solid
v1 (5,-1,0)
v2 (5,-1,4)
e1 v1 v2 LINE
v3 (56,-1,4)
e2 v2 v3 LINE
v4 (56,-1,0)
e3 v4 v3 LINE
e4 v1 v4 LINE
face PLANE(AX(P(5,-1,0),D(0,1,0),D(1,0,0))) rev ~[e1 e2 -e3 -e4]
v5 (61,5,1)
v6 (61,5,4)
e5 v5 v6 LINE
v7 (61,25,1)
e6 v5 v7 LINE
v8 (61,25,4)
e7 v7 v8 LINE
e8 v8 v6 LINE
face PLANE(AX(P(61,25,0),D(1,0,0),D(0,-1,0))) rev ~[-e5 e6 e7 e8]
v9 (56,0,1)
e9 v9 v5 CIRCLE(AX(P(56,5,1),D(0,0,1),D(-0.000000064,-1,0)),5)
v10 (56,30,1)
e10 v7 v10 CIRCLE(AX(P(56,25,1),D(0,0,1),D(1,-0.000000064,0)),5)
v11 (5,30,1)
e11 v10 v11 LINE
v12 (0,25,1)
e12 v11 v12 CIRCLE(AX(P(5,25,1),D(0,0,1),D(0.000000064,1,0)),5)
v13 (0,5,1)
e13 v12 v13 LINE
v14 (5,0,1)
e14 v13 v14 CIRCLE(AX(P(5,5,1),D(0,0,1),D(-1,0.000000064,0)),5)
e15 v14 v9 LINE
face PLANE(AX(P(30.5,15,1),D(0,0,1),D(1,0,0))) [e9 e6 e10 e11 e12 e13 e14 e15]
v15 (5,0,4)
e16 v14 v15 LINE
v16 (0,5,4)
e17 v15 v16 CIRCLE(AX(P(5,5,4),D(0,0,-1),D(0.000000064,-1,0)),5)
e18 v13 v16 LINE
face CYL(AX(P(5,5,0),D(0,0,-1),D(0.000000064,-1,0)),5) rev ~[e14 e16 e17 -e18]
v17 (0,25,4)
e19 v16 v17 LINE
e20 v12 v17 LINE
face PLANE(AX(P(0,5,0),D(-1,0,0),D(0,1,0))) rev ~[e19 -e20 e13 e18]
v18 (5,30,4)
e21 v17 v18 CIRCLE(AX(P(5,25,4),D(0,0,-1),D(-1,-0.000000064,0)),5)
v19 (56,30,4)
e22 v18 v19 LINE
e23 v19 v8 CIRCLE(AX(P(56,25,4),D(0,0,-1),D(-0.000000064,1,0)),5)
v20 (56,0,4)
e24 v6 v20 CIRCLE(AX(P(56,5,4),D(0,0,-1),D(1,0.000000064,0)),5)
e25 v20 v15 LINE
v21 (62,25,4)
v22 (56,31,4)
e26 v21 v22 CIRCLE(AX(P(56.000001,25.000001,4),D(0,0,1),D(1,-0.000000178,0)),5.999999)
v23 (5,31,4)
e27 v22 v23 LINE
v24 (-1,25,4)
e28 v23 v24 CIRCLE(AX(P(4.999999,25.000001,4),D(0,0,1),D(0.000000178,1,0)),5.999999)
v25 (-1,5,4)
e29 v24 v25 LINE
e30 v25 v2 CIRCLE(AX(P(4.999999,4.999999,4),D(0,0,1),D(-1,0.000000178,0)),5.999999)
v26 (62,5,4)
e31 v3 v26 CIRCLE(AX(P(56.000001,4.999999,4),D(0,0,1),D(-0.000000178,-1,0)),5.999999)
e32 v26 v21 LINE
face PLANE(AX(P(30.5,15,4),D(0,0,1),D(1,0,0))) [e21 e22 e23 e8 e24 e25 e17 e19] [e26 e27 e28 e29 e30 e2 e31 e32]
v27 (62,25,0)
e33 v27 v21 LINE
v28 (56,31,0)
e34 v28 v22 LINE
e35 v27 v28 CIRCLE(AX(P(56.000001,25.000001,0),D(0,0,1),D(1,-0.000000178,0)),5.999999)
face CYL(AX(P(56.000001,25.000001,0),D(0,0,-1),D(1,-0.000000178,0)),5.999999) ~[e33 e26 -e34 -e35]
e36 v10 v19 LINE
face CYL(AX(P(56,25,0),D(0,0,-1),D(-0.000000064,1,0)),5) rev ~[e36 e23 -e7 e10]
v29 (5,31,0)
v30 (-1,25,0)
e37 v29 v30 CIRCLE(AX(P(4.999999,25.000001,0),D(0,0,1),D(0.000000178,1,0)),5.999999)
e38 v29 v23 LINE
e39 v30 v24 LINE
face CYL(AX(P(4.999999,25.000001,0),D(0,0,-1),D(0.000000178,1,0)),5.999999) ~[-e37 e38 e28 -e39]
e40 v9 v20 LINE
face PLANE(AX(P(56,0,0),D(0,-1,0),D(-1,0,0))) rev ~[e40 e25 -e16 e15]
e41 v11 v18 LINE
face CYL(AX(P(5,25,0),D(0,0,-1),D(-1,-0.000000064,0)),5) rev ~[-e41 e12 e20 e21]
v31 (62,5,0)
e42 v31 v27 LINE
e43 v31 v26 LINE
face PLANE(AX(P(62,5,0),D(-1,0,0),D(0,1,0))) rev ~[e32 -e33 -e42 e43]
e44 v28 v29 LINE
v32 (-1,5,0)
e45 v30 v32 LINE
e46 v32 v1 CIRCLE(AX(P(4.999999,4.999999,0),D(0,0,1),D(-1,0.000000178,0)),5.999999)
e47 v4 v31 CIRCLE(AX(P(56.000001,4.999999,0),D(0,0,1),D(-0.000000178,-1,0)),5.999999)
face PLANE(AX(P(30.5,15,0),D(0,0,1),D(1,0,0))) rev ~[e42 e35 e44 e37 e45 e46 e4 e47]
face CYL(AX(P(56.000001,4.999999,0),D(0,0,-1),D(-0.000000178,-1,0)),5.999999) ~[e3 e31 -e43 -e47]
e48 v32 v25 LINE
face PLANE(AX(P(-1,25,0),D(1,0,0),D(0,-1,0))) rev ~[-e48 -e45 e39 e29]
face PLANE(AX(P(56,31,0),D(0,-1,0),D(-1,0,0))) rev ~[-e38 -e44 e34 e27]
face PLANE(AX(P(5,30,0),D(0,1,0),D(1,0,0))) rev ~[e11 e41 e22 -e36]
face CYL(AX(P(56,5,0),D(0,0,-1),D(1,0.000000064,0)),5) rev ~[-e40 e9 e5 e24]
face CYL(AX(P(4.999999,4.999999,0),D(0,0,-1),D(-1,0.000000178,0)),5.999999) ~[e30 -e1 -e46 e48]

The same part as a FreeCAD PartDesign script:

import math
import FreeCAD as App
import Part
import Sketcher
Q = App.Units.Quantity

doc = App.newDocument("Part")
params = doc.addObject("Spreadsheet::Sheet", "Params")
for row, (alias, value) in enumerate([
    ("sketch1_radius", "5 mm"),
    ("sketch1_width", "51 mm"),
    ("sketch1_height", "20 mm"),
    ("pad1_length", "1 mm"),
    ("sketch2_radius", "5.999999 mm"),
    ("sketch2_radius2", "5 mm"),
    ("sketch2_width", "51 mm"),
    ("sketch2_height", "20 mm"),
    ("pad2_length", "4 mm"),
], start=1):
    params.set(f"A{row}", alias)
    params.set(f"B{row}", "=" + value)
    params.setAlias(f"B{row}", alias)

body = doc.addObject("PartDesign::Body", "Body")

# Sketch on XY plane
sketch1 = body.newObject("Sketcher::SketchObject", "Sketch")
sketch1.AttachmentSupport = (doc.getObject("XY_Plane"), [""])
sketch1.MapMode = "FlatFace"
sketch1.addGeometry([
    Part.ArcOfCircle(Part.Circle(App.Vector(5, 5, 0), App.Vector(0, 0, 1), 5), math.radians(180), math.radians(270)),  # 0
    Part.LineSegment(App.Vector(5, 0, 0), App.Vector(56, 0, 0)),  # 1
    Part.ArcOfCircle(Part.Circle(App.Vector(56, 5, 0), App.Vector(0, 0, 1), 5), math.radians(-90), math.radians(0)),  # 2
    Part.LineSegment(App.Vector(61, 5, 0), App.Vector(61, 25, 0)),  # 3
    Part.ArcOfCircle(Part.Circle(App.Vector(56, 25, 0), App.Vector(0, 0, 1), 5), math.radians(0), math.radians(90)),  # 4
    Part.LineSegment(App.Vector(56, 30, 0), App.Vector(5, 30, 0)),  # 5
    Part.ArcOfCircle(Part.Circle(App.Vector(5, 25, 0), App.Vector(0, 0, 1), 5), math.radians(90), math.radians(180)),  # 6
    Part.LineSegment(App.Vector(0, 25, 0), App.Vector(0, 5, 0)),  # 7
], False)
sketch1.addConstraint([
    Sketcher.Constraint("Tangent", 0, 2, 1, 1),
    Sketcher.Constraint("Tangent", 1, 2, 2, 1),
    Sketcher.Constraint("Tangent", 2, 2, 3, 1),
    Sketcher.Constraint("Tangent", 3, 2, 4, 1),
    Sketcher.Constraint("Tangent", 4, 2, 5, 1),
    Sketcher.Constraint("Tangent", 5, 2, 6, 1),
    Sketcher.Constraint("Tangent", 6, 2, 7, 1),
    Sketcher.Constraint("Tangent", 7, 2, 0, 1),
    Sketcher.Constraint("Horizontal", 1),
    Sketcher.Constraint("Vertical", 3),
    Sketcher.Constraint("Horizontal", 5),
    Sketcher.Constraint("Vertical", 7),
    Sketcher.Constraint("Equal", 0, 2),
    Sketcher.Constraint("Equal", 2, 4),
    Sketcher.Constraint("Equal", 4, 6),
    Sketcher.Constraint("PointOnObject", 0, 2, -1),
    Sketcher.Constraint("PointOnObject", 6, 2, -2),
    Sketcher.Constraint("Radius", 0, Q("5 mm")),
    Sketcher.Constraint("DistanceX", 1, 1, 1, 2, Q("51 mm")),
    Sketcher.Constraint("DistanceY", 3, 1, 3, 2, Q("20 mm")),
])
sketch1.setExpression("Constraints[17]", "Params.sketch1_radius")
sketch1.setExpression("Constraints[18]", "Params.sketch1_width")
sketch1.setExpression("Constraints[19]", "Params.sketch1_height")
pad1 = body.newObject("PartDesign::Pad", "Pad")
pad1.Profile = sketch1
pad1.setExpression("Length", "Params.pad1_length")

# Sketch on XY plane
sketch2 = body.newObject("Sketcher::SketchObject", "Sketch001")
sketch2.AttachmentSupport = (doc.getObject("XY_Plane"), [""])
sketch2.MapMode = "FlatFace"
sketch2.addGeometry([
    Part.ArcOfCircle(Part.Circle(App.Vector(56, 5, 0), App.Vector(0, 0, 1), 6), math.radians(-90), math.radians(0)),  # 0
    Part.LineSegment(App.Vector(62, 5, 0), App.Vector(62, 25, 0)),  # 1
    Part.ArcOfCircle(Part.Circle(App.Vector(56, 25, 0), App.Vector(0, 0, 1), 6), math.radians(0), math.radians(90)),  # 2
    Part.LineSegment(App.Vector(56, 31, 0), App.Vector(5, 31, 0)),  # 3
    Part.ArcOfCircle(Part.Circle(App.Vector(5, 25, 0), App.Vector(0, 0, 1), 6), math.radians(90), math.radians(180)),  # 4
    Part.LineSegment(App.Vector(-1, 25, 0), App.Vector(-1, 5, 0)),  # 5
    Part.ArcOfCircle(Part.Circle(App.Vector(5, 5, 0), App.Vector(0, 0, 1), 6), math.radians(180), math.radians(270)),  # 6
    Part.LineSegment(App.Vector(5, -1, 0), App.Vector(56, -1, 0)),  # 7
    Part.ArcOfCircle(Part.Circle(App.Vector(56, 5, 0), App.Vector(0, 0, 1), 5), math.radians(-90), math.radians(0)),  # 8
    Part.LineSegment(App.Vector(56, 0, 0), App.Vector(5, 0, 0)),  # 9
    Part.ArcOfCircle(Part.Circle(App.Vector(5, 5, 0), App.Vector(0, 0, 1), 5), math.radians(180), math.radians(270)),  # 10
    Part.LineSegment(App.Vector(0, 5, 0), App.Vector(0, 25, 0)),  # 11
    Part.ArcOfCircle(Part.Circle(App.Vector(5, 25, 0), App.Vector(0, 0, 1), 5), math.radians(90), math.radians(180)),  # 12
    Part.LineSegment(App.Vector(5, 30, 0), App.Vector(56, 30, 0)),  # 13
    Part.ArcOfCircle(Part.Circle(App.Vector(56, 25, 0), App.Vector(0, 0, 1), 5), math.radians(0), math.radians(90)),  # 14
    Part.LineSegment(App.Vector(61, 25, 0), App.Vector(61, 5, 0)),  # 15
], False)
sketch2.addConstraint([
    Sketcher.Constraint("Tangent", 0, 2, 1, 1),
    Sketcher.Constraint("Tangent", 1, 2, 2, 1),
    Sketcher.Constraint("Tangent", 2, 2, 3, 1),
    Sketcher.Constraint("Tangent", 3, 2, 4, 1),
    Sketcher.Constraint("Tangent", 4, 2, 5, 1),
    Sketcher.Constraint("Tangent", 5, 2, 6, 1),
    Sketcher.Constraint("Tangent", 6, 2, 7, 1),
    Sketcher.Constraint("Tangent", 7, 2, 0, 1),
    Sketcher.Constraint("Tangent", 8, 1, 9, 1),
    Sketcher.Constraint("Tangent", 9, 2, 10, 2),
    Sketcher.Constraint("Tangent", 10, 1, 11, 1),
    Sketcher.Constraint("Tangent", 11, 2, 12, 2),
    Sketcher.Constraint("Tangent", 12, 1, 13, 1),
    Sketcher.Constraint("Tangent", 13, 2, 14, 2),
    Sketcher.Constraint("Tangent", 14, 1, 15, 1),
    Sketcher.Constraint("Tangent", 15, 2, 8, 2),
    Sketcher.Constraint("Vertical", 1),
    Sketcher.Constraint("Horizontal", 3),
    Sketcher.Constraint("Vertical", 5),
    Sketcher.Constraint("Horizontal", 7),
    Sketcher.Constraint("Horizontal", 9),
    Sketcher.Constraint("Vertical", 11),
    Sketcher.Constraint("Horizontal", 13),
    Sketcher.Constraint("Vertical", 15),
    Sketcher.Constraint("Coincident", 8, 3, 0, 3),
    Sketcher.Constraint("Coincident", 10, 3, 6, 3),
    Sketcher.Constraint("Coincident", 12, 3, 4, 3),
    Sketcher.Constraint("Equal", 0, 2),
    Sketcher.Constraint("Equal", 2, 4),
    Sketcher.Constraint("Equal", 4, 6),
    Sketcher.Constraint("Equal", 12, 14),
    Sketcher.Constraint("PointOnObject", 8, 1, -1),
    Sketcher.Constraint("PointOnObject", 10, 1, -2),
    Sketcher.Constraint("Radius", 0, Q("5.999999 mm")),
    Sketcher.Constraint("Radius", 8, Q("5 mm")),
    Sketcher.Constraint("DistanceX", 3, 2, 3, 1, Q("51 mm")),
    Sketcher.Constraint("DistanceY", 1, 1, 1, 2, Q("20 mm")),
])
sketch2.setExpression("Constraints[33]", "Params.sketch2_radius")
sketch2.setExpression("Constraints[34]", "Params.sketch2_radius2")
sketch2.setExpression("Constraints[35]", "Params.sketch2_width")
sketch2.setExpression("Constraints[36]", "Params.sketch2_height")
pad2 = body.newObject("PartDesign::Pad", "Pad001")
pad2.Profile = sketch2
pad2.setExpression("Length", "Params.pad2_length")

doc.recompute()
